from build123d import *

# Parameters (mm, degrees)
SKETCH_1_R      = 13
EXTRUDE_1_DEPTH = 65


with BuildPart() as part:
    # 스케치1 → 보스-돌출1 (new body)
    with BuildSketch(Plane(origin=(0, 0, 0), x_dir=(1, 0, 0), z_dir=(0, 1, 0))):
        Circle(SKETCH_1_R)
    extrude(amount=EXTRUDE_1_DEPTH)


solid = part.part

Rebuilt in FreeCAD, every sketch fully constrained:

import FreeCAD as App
import Part
import Sketcher

V = App.Vector

doc = App.newDocument("Part")
params = doc.addObject("Spreadsheet::Sheet", "Params")
for row, (alias, value) in enumerate([
    ("sketch1_diameter", "26 mm"),
    ("pad1_length", "65 mm"),
], start=1):
    params.set(f"A{row}", alias)
    params.set(f"B{row}", "=" + value)
    params.setAlias(f"B{row}", alias)

body = doc.addObject("PartDesign::Body", "Body")

# Sketch on XZ plane
sketch1 = body.newObject("Sketcher::SketchObject", "Sketch")
sketch1.AttachmentSupport = (doc.getObject("XZ_Plane"), [""])
sketch1.MapMode = "FlatFace"
sketch1.addGeometry(Part.Circle(V(0, 0, 0), V(0, 0, 1), 13), False)
sketch1.addConstraint([
    Sketcher.Constraint("Coincident", 0, 3, -1, 1),
    Sketcher.Constraint("Diameter", 0, 26.0),
])
sketch1.setExpression("Constraints[1]", "Params.sketch1_diameter")
pad1 = body.newObject("PartDesign::Pad", "Pad")
pad1.Profile = sketch1
pad1.setExpression("Length", "Params.pad1_length")
pad1.Reversed = True

doc.recompute()
